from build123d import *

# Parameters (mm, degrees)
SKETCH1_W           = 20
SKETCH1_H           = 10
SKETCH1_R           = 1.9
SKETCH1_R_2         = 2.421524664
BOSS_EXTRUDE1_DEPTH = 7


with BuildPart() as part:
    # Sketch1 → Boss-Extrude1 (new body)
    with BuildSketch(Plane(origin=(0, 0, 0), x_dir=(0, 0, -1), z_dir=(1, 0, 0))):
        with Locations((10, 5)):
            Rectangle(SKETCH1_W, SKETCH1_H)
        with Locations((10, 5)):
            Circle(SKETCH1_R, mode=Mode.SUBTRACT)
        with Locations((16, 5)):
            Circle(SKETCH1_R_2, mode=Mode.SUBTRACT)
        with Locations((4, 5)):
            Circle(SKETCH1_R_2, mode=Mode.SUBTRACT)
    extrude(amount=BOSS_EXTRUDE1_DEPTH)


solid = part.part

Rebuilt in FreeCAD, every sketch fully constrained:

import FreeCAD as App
import Part
import Sketcher
from FreeCAD import Vector
Q = App.Units.Quantity


def add_polygon(sketch, points):
    """Adds a closed chain of lines whose ends are joined by coincident constraints."""
    first, n = sketch.GeometryCount, len(points)
    for a, b in zip(points, points[1:] + points[:1]):
        sketch.addGeometry(Part.LineSegment(App.Vector(*a, 0), App.Vector(*b, 0)), False)
    for i in range(n):
        sketch.addConstraint(Sketcher.Constraint("Coincident", first + i, 2, first + (i + 1) % n, 1))

doc = App.newDocument("Part")
params = doc.addObject("Spreadsheet::Sheet", "Params")
for row, (alias, value) in enumerate([
    ("sketch1_diameter", "3.8 mm"),
    ("sketch1_width", "10 mm"),
    ("sketch1_height", "20 mm"),
    ("pad1_length", "7 mm"),
], start=1):
    params.set(f"A{row}", alias)
    params.set(f"B{row}", "=" + value)
    params.setAlias(f"B{row}", alias)

body = doc.addObject("PartDesign::Body", "Body")

# Sketch on YZ plane
sketch1 = body.newObject("Sketcher::SketchObject", "Sketch")
sketch1.AttachmentSupport = (doc.getObject("YZ_Plane"), [""])
sketch1.MapMode = "FlatFace"
add_polygon(sketch1, [(10, 0), (0, 0), (0, -20), (10, -20)])  # lines 0-3
sketch1.addGeometry(Part.Circle(Vector(5, -4, 0), Vector(0, 0, 1), 2.421525), False)  # 4
sketch1.addGeometry(Part.Circle(Vector(5, -10, 0), Vector(0, 0, 1), 1.9), False)  # 5
sketch1.addGeometry(Part.Circle(Vector(5, -16, 0), Vector(0, 0, 1), 2.421525), False)  # 6
sketch1.addConstraint([
    Sketcher.Constraint("Horizontal", 0),
    Sketcher.Constraint("Vertical", 1),
    Sketcher.Constraint("Horizontal", 2),
    Sketcher.Constraint("Vertical", 3),
    Sketcher.Constraint("Coincident", 0, 2, -1, 1),
    Sketcher.Constraint("Equal", 4, 6),
    Sketcher.Constraint("Vertical", 4, 3, 5, 3),
    Sketcher.Constraint("Vertical", 5, 3, 6, 3),
    Sketcher.Constraint("Diameter", 5, Q("3.8 mm")),
    Sketcher.Constraint("DistanceX", 0, 2, 0, 1, Q("10 mm")),
    Sketcher.Constraint("DistanceY", 1, 2, 1, 1, Q("20 mm")),
    Sketcher.Constraint("DistanceX", -1, 1, 4, 3, Q("5 mm")),
    Sketcher.Constraint("DistanceY", 4, 3, -1, 1, Q("4 mm")),
    Sketcher.Constraint("DistanceY", 5, 3, -1, 1, Q("10 mm")),
    Sketcher.Constraint("DistanceY", 6, 3, -1, 1, Q("16 mm")),
    Sketcher.Constraint("Diameter", 4, Q("4.843049 mm")),
])
sketch1.setExpression("Constraints[12]", "Params.sketch1_diameter")
sketch1.setExpression("Constraints[13]", "Params.sketch1_width")
sketch1.setExpression("Constraints[14]", "Params.sketch1_height")
pad1 = body.newObject("PartDesign::Pad", "Pad")
pad1.Profile = sketch1
pad1.setExpression("Length", "Params.pad1_length")

doc.recompute()
